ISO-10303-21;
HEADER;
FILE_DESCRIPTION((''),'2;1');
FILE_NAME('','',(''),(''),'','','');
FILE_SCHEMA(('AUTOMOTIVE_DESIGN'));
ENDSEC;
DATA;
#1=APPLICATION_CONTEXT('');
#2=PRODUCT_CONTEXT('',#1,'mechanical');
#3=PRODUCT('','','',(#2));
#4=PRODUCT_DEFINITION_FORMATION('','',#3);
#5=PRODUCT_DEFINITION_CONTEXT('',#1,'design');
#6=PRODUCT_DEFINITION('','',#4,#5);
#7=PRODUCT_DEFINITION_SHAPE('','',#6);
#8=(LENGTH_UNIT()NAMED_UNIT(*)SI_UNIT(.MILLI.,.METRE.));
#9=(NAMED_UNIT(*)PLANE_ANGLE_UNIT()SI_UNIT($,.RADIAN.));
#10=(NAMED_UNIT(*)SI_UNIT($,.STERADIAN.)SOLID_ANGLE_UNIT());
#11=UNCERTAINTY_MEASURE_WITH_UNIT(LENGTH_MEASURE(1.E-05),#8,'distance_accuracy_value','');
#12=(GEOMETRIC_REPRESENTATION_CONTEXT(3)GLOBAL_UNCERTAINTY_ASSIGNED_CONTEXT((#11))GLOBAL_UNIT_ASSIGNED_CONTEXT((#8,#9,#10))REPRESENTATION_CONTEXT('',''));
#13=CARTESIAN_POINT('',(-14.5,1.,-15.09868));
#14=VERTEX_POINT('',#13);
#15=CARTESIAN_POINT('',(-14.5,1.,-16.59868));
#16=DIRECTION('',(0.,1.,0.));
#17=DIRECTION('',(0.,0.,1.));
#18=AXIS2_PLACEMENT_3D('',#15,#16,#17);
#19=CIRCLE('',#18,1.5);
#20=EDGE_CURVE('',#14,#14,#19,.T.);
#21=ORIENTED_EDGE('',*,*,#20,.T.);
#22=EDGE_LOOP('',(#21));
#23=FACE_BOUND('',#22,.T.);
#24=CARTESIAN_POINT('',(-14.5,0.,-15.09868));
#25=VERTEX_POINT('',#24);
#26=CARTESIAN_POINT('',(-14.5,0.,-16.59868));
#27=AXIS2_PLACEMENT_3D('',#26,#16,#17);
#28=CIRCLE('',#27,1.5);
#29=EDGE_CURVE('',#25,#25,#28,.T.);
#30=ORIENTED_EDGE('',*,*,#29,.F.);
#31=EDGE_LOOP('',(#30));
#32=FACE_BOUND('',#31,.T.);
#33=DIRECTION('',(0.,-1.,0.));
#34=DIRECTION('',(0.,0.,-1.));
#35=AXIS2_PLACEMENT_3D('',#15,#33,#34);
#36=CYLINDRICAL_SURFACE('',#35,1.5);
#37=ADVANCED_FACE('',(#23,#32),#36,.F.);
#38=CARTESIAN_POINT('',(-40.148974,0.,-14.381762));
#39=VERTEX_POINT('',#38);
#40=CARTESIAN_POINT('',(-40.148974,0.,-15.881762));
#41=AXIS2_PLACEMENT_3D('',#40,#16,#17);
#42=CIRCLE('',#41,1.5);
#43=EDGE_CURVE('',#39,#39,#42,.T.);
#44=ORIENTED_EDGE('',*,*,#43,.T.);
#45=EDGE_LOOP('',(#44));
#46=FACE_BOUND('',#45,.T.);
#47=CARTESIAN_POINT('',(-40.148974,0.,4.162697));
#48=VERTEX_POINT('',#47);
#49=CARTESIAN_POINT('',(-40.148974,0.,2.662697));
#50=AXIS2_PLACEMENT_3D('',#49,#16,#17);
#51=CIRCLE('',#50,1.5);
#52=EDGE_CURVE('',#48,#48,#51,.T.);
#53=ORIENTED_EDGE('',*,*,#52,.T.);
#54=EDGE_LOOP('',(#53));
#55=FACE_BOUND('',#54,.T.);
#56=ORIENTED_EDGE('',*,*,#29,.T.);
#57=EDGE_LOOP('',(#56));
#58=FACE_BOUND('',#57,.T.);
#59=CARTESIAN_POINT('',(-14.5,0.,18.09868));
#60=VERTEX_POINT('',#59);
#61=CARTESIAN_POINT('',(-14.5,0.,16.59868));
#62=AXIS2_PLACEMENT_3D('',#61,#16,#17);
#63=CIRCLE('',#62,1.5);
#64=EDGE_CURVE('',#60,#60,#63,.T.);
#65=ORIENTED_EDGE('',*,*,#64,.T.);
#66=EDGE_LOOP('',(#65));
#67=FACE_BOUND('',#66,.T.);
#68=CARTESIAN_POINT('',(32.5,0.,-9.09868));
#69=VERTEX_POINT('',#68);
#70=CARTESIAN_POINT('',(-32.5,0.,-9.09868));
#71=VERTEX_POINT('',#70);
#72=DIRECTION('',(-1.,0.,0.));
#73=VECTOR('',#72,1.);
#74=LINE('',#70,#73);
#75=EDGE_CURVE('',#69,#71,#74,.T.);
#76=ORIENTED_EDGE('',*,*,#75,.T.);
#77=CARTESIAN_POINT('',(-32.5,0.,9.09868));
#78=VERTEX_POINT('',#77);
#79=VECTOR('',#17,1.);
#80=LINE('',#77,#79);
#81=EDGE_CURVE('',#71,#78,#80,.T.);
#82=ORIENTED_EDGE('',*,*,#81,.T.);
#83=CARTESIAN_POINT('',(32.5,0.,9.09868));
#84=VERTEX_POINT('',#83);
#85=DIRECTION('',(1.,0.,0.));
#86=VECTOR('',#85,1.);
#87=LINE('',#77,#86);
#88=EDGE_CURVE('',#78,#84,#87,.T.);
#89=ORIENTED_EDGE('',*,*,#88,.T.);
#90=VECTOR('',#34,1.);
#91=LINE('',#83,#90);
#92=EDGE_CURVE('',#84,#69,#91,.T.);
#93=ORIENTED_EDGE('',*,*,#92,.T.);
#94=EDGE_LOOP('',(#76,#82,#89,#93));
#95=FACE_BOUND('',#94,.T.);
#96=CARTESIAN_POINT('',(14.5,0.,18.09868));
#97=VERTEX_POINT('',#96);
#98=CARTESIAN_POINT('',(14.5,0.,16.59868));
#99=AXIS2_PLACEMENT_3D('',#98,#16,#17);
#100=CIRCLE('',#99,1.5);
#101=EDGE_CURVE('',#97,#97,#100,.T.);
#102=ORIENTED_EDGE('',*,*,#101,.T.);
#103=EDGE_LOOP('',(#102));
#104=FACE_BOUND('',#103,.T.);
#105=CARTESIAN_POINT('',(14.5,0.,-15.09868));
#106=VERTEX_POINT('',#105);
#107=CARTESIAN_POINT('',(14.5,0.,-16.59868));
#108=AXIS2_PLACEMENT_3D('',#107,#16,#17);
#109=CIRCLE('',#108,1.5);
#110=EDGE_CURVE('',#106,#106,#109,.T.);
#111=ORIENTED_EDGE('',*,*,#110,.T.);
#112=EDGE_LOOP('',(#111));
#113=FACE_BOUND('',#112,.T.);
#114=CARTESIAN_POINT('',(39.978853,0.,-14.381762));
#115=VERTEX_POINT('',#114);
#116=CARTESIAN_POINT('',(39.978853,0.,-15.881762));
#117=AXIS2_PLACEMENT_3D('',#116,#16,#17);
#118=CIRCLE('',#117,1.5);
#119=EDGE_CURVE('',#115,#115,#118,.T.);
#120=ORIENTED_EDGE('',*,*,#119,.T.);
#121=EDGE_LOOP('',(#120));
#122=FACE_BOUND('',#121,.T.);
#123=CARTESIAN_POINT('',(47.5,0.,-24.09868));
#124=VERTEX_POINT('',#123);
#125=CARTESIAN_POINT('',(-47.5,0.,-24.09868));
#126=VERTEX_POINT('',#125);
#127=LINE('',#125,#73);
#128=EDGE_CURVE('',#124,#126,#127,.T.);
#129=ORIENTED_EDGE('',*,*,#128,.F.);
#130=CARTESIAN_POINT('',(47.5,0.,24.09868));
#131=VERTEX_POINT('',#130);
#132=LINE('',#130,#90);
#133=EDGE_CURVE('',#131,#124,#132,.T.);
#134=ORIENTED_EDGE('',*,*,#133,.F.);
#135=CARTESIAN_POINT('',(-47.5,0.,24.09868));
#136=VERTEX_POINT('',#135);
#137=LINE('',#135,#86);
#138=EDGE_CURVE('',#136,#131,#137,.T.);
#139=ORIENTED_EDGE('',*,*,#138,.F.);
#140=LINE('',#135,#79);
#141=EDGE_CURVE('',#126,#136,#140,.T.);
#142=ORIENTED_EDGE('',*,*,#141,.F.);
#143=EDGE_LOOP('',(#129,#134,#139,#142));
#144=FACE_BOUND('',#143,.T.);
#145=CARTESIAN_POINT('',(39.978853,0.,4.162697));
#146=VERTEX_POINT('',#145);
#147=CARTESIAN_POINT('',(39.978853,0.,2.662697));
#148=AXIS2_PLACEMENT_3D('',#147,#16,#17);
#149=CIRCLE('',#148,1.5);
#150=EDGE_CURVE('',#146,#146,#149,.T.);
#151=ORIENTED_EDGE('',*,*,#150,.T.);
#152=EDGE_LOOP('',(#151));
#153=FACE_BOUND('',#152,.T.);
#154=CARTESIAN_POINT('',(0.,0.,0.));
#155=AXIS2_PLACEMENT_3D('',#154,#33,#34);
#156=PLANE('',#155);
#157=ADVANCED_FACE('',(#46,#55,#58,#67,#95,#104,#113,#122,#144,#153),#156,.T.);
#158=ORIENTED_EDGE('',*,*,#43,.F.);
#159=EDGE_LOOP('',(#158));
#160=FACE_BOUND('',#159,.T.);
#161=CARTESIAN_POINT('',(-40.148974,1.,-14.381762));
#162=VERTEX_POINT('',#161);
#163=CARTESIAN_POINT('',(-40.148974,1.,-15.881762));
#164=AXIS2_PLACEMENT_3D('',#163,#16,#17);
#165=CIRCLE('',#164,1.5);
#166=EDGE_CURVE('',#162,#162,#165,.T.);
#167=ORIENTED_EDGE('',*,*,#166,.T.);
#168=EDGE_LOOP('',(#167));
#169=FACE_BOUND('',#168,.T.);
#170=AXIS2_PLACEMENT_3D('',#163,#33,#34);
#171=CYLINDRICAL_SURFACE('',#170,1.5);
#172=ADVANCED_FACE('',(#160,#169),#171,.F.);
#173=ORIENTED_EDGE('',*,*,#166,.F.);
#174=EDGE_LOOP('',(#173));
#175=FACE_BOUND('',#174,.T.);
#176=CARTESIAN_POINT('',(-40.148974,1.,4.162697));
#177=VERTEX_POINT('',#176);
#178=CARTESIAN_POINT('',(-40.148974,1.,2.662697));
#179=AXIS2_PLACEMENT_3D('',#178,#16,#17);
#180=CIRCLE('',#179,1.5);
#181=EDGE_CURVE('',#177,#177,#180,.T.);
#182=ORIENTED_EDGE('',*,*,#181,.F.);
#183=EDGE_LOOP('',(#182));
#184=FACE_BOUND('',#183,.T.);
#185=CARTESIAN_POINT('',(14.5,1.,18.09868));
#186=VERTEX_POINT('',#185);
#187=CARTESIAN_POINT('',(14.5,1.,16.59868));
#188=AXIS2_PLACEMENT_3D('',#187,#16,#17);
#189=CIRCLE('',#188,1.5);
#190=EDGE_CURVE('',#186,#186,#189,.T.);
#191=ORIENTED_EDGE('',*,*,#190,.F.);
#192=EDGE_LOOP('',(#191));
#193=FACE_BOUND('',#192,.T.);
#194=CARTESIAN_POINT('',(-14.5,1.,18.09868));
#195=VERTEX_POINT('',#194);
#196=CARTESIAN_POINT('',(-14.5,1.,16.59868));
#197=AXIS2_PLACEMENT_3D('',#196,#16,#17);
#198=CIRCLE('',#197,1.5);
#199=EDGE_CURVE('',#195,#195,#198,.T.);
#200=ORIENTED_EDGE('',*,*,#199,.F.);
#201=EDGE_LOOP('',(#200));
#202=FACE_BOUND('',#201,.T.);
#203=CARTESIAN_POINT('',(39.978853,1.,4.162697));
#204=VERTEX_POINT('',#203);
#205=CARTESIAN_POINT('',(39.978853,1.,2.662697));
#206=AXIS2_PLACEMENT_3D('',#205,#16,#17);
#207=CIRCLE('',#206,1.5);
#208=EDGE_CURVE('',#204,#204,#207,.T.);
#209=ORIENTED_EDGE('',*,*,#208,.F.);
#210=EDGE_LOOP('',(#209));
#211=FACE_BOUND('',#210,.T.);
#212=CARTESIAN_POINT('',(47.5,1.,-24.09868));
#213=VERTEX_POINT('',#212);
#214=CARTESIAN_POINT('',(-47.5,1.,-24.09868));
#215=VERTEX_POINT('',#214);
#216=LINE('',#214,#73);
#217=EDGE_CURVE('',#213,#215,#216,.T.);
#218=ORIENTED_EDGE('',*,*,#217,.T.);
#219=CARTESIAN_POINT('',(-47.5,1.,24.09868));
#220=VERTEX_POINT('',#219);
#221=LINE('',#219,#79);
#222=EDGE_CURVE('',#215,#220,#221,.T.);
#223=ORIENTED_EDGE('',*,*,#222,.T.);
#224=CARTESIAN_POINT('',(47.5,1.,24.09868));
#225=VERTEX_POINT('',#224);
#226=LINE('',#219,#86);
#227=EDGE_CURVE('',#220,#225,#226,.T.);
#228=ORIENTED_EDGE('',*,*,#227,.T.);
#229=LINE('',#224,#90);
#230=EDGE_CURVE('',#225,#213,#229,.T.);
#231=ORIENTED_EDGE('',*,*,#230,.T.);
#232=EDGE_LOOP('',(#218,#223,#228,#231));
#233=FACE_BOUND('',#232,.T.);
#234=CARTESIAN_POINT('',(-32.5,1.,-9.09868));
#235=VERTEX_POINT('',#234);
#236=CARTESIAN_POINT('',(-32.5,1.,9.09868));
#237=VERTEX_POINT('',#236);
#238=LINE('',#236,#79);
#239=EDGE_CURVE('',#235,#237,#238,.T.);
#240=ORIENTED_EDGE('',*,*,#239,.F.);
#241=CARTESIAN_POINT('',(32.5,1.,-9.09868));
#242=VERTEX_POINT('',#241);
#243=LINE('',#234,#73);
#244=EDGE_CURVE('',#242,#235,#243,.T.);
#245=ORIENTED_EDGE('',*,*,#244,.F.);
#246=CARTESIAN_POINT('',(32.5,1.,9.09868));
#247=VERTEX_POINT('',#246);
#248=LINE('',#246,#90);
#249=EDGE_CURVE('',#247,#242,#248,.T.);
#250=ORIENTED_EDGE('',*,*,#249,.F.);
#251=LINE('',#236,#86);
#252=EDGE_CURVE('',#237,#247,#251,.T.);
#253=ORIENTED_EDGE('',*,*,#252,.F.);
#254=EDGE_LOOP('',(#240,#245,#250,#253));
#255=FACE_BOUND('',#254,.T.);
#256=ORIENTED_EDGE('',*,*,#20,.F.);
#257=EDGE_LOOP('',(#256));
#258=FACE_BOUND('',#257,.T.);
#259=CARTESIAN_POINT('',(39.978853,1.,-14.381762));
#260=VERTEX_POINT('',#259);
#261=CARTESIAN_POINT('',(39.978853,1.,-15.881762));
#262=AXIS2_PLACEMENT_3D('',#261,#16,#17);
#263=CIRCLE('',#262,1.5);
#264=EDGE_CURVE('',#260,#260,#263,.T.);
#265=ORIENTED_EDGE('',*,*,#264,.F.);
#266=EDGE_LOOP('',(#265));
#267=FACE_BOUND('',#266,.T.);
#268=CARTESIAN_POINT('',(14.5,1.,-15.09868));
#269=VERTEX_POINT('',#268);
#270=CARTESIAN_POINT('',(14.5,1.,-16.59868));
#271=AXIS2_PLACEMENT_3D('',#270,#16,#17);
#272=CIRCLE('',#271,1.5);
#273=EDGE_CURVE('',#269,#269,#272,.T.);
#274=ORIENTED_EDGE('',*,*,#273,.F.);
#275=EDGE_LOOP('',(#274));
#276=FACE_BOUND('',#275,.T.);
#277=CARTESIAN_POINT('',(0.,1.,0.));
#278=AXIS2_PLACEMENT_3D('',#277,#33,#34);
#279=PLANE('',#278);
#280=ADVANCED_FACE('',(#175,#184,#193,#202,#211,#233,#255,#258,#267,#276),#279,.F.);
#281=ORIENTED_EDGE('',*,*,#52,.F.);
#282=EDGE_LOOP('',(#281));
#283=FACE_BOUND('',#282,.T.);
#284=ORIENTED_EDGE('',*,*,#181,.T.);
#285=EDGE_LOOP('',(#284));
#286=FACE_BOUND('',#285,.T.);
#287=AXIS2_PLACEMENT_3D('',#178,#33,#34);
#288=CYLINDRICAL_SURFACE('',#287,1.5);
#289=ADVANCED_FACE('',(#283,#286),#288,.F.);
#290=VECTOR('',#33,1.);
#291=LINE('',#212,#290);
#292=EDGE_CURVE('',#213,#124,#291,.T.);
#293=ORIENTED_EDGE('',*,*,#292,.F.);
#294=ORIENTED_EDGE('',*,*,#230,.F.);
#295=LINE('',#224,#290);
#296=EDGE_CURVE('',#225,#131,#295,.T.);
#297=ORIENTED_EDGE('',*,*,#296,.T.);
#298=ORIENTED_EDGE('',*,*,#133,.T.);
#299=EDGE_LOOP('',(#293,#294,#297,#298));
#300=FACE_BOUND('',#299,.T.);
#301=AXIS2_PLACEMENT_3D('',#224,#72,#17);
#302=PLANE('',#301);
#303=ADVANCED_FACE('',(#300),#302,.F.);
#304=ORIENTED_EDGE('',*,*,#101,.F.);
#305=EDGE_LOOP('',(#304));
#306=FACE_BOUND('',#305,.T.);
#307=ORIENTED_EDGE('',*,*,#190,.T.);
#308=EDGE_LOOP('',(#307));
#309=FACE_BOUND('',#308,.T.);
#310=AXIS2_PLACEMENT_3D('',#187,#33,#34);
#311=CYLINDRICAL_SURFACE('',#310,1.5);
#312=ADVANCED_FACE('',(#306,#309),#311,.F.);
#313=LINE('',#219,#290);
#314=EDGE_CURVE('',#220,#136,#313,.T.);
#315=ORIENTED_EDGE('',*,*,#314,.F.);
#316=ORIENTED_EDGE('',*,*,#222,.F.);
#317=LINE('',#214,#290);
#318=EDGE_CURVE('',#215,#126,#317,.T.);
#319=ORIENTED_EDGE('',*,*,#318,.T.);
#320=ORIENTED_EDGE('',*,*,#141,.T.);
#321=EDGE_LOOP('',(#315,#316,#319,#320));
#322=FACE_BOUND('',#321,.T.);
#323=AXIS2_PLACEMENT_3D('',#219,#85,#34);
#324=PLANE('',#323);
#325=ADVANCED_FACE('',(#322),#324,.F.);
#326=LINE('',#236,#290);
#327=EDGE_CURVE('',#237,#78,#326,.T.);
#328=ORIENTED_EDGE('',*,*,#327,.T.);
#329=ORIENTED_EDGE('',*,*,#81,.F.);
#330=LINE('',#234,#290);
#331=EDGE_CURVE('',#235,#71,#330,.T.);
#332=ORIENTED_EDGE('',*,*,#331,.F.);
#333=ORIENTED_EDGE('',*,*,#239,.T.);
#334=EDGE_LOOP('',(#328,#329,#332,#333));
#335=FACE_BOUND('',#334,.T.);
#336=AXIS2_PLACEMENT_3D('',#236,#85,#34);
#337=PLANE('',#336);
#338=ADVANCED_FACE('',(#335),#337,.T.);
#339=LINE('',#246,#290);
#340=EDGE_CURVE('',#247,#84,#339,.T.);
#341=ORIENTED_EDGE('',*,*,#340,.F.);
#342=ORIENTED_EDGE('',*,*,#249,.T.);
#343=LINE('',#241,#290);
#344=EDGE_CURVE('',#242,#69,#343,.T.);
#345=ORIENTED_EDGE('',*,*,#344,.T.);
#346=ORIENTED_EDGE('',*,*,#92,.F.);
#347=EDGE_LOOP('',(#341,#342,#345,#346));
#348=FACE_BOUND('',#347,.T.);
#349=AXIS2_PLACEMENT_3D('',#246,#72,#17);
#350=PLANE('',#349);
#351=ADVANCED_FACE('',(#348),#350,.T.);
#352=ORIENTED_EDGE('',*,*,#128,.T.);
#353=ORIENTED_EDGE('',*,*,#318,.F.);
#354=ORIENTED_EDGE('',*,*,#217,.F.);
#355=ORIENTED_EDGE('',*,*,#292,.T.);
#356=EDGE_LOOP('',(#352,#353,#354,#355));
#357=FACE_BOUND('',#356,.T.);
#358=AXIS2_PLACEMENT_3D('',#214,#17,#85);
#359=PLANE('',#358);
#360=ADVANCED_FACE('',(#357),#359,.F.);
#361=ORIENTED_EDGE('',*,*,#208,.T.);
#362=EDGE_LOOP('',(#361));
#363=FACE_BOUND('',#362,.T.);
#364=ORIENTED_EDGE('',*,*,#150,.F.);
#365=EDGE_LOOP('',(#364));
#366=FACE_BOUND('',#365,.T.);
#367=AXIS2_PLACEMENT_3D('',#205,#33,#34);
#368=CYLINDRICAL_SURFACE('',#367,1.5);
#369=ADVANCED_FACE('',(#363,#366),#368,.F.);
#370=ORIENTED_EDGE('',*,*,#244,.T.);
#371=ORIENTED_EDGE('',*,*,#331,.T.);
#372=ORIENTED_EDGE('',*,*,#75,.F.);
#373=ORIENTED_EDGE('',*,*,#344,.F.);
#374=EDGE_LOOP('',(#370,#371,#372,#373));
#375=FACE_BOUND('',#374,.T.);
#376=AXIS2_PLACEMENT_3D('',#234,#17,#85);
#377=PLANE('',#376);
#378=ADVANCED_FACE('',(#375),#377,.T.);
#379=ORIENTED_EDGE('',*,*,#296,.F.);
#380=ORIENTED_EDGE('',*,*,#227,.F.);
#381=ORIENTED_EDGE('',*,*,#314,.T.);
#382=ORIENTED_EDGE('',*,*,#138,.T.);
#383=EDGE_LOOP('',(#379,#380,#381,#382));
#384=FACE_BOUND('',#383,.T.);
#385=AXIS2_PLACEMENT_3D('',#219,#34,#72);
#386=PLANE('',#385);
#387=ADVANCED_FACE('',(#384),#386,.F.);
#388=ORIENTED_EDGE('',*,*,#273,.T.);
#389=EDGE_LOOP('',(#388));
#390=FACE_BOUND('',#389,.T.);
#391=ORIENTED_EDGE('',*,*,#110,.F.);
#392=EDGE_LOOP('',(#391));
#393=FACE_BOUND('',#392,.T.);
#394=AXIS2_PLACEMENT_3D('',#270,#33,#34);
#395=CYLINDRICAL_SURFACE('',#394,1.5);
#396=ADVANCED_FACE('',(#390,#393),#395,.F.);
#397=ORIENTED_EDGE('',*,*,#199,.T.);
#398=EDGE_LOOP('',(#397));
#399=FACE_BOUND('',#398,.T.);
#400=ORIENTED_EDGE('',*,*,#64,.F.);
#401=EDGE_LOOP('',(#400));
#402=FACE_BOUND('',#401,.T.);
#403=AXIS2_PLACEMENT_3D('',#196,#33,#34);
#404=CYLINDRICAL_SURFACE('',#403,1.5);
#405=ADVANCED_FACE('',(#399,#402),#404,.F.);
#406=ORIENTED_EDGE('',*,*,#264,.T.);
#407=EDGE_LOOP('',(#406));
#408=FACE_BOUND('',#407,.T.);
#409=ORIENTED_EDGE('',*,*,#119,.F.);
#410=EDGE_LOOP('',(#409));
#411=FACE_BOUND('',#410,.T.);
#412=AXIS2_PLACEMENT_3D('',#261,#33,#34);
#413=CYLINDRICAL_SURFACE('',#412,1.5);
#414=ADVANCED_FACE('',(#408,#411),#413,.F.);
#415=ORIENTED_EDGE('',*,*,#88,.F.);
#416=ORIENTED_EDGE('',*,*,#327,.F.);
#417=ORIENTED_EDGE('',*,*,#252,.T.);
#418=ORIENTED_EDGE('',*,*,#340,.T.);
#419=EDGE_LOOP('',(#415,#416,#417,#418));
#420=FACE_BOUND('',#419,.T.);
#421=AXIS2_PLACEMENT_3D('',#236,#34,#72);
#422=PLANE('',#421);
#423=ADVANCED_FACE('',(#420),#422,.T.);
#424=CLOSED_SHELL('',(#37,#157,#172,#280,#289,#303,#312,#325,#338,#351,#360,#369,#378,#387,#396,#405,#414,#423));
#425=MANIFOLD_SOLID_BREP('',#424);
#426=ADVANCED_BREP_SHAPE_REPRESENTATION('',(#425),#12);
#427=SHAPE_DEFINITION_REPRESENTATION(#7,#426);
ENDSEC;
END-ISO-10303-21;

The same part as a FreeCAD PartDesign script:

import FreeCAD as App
import Part
import Sketcher

V = App.Vector
Q = App.Units.Quantity

doc = App.newDocument("Part")
body = doc.addObject("PartDesign::Body", "Body")

# Sketch on XZ plane
sketch1 = body.newObject("Sketcher::SketchObject", "Sketch")
sketch1.AttachmentSupport = (doc.getObject("XZ_Plane"), [""])
sketch1.MapMode = "FlatFace"
sketch1.addGeometry([
    Part.LineSegment(V(-47.5, -24.1, 0), V(-47.5, 24.1, 0)),  # 0
    Part.LineSegment(V(-47.5, 24.1, 0), V(47.5, 24.1, 0)),  # 1
    Part.LineSegment(V(47.5, 24.1, 0), V(47.5, -24.1, 0)),  # 2
    Part.LineSegment(V(47.5, -24.1, 0), V(-47.5, -24.1, 0)),  # 3
    Part.Circle(V(-14.5, 16.6, 0), V(0, 0, 1), 1.5),  # 4
    Part.Circle(V(-40.1, 2.7, 0), V(0, 0, 1), 1.5),  # 5
    Part.Circle(V(14.5, 16.6, 0), V(0, 0, 1), 1.5),  # 6
    Part.Circle(V(40, 2.7, 0), V(0, 0, 1), 1.5),  # 7
    Part.Circle(V(-40.1, -15.9, 0), V(0, 0, 1), 1.5),  # 8
    Part.Circle(V(-14.5, -16.6, 0), V(0, 0, 1), 1.5),  # 9
    Part.LineSegment(V(32.5, 9.1, 0), V(-32.5, 9.1, 0)),  # 10
    Part.LineSegment(V(-32.5, 9.1, 0), V(-32.5, -9.1, 0)),  # 11
    Part.LineSegment(V(-32.5, -9.1, 0), V(32.5, -9.1, 0)),  # 12
    Part.LineSegment(V(32.5, -9.1, 0), V(32.5, 9.1, 0)),  # 13
    Part.Circle(V(14.5, -16.6, 0), V(0, 0, 1), 1.5),  # 14
    Part.Circle(V(40, -15.9, 0), V(0, 0, 1), 1.5),  # 15
], False)
sketch1.addConstraint([
    Sketcher.Constraint("Coincident", 0, 2, 1, 1),
    Sketcher.Constraint("Coincident", 1, 2, 2, 1),
    Sketcher.Constraint("Coincident", 2, 2, 3, 1),
    Sketcher.Constraint("Coincident", 3, 2, 0, 1),
    Sketcher.Constraint("Coincident", 10, 2, 11, 1),
    Sketcher.Constraint("Coincident", 11, 2, 12, 1),
    Sketcher.Constraint("Coincident", 12, 2, 13, 1),
    Sketcher.Constraint("Coincident", 13, 2, 10, 1),
    Sketcher.Constraint("Vertical", 0),
    Sketcher.Constraint("Horizontal", 1),
    Sketcher.Constraint("Vertical", 2),
    Sketcher.Constraint("Horizontal", 3),
    Sketcher.Constraint("Horizontal", 10),
    Sketcher.Constraint("Vertical", 11),
    Sketcher.Constraint("Horizontal", 12),
    Sketcher.Constraint("Vertical", 13),
    Sketcher.Constraint("Equal", 4, 5),
    Sketcher.Constraint("Equal", 5, 6),
    Sketcher.Constraint("Equal", 6, 7),
    Sketcher.Constraint("Equal", 7, 8),
    Sketcher.Constraint("Equal", 8, 9),
    Sketcher.Constraint("Equal", 9, 14),
    Sketcher.Constraint("Equal", 14, 15),
    Sketcher.Constraint("Symmetric", 6, 3, 9, 3, -1, 1),
    Sketcher.Constraint("Symmetric", 4, 3, 14, 3, -1, 1),
    Sketcher.Constraint("Symmetric", 0, 2, 2, 2, -1, 1),
    Sketcher.Constraint("Symmetric", 10, 2, 12, 2, -1, 1),
    Sketcher.Constraint("Symmetric", 4, 3, 6, 3, -2),
    Sketcher.Constraint("Horizontal", 5, 3, 7, 3),
    Sketcher.Constraint("Horizontal", 8, 3, 15, 3),
    Sketcher.Constraint("Vertical", 5, 3, 8, 3),
    Sketcher.Constraint("Vertical", 7, 3, 15, 3),
    Sketcher.Constraint("Diameter", 4, Q("3 mm")),
    Sketcher.Constraint("DistanceX", 1, 1, 1, 2, Q("95 mm")),
    Sketcher.Constraint("DistanceX", 10, 2, 10, 1, Q("65 mm")),
    Sketcher.Constraint("DistanceX", 4, 3, 6, 3, Q("29 mm")),
    Sketcher.Constraint("DistanceY", 10, 2, 0, 2, Q("15 mm")),
    Sketcher.Constraint("DistanceY", 4, 3, 0, 2, Q("7.5 mm")),
    Sketcher.Constraint("DistanceY", 0, 1, 0, 2, Q("48.19736 mm")),
    Sketcher.Constraint("DistanceY", 8, 3, -1, 1, Q("15.881762 mm")),
    Sketcher.Constraint("DistanceY", 8, 3, 5, 3, Q("18.544459 mm")),
    Sketcher.Constraint("DistanceX", 5, 3, -1, 1, Q("40.148974 mm")),
    Sketcher.Constraint("DistanceX", -1, 1, 7, 3, Q("39.978853 mm")),
])
pad1 = body.newObject("PartDesign::Pad", "Pad")
pad1.Profile = sketch1
pad1.Length = 1
pad1.Reversed = True

doc.recompute()
